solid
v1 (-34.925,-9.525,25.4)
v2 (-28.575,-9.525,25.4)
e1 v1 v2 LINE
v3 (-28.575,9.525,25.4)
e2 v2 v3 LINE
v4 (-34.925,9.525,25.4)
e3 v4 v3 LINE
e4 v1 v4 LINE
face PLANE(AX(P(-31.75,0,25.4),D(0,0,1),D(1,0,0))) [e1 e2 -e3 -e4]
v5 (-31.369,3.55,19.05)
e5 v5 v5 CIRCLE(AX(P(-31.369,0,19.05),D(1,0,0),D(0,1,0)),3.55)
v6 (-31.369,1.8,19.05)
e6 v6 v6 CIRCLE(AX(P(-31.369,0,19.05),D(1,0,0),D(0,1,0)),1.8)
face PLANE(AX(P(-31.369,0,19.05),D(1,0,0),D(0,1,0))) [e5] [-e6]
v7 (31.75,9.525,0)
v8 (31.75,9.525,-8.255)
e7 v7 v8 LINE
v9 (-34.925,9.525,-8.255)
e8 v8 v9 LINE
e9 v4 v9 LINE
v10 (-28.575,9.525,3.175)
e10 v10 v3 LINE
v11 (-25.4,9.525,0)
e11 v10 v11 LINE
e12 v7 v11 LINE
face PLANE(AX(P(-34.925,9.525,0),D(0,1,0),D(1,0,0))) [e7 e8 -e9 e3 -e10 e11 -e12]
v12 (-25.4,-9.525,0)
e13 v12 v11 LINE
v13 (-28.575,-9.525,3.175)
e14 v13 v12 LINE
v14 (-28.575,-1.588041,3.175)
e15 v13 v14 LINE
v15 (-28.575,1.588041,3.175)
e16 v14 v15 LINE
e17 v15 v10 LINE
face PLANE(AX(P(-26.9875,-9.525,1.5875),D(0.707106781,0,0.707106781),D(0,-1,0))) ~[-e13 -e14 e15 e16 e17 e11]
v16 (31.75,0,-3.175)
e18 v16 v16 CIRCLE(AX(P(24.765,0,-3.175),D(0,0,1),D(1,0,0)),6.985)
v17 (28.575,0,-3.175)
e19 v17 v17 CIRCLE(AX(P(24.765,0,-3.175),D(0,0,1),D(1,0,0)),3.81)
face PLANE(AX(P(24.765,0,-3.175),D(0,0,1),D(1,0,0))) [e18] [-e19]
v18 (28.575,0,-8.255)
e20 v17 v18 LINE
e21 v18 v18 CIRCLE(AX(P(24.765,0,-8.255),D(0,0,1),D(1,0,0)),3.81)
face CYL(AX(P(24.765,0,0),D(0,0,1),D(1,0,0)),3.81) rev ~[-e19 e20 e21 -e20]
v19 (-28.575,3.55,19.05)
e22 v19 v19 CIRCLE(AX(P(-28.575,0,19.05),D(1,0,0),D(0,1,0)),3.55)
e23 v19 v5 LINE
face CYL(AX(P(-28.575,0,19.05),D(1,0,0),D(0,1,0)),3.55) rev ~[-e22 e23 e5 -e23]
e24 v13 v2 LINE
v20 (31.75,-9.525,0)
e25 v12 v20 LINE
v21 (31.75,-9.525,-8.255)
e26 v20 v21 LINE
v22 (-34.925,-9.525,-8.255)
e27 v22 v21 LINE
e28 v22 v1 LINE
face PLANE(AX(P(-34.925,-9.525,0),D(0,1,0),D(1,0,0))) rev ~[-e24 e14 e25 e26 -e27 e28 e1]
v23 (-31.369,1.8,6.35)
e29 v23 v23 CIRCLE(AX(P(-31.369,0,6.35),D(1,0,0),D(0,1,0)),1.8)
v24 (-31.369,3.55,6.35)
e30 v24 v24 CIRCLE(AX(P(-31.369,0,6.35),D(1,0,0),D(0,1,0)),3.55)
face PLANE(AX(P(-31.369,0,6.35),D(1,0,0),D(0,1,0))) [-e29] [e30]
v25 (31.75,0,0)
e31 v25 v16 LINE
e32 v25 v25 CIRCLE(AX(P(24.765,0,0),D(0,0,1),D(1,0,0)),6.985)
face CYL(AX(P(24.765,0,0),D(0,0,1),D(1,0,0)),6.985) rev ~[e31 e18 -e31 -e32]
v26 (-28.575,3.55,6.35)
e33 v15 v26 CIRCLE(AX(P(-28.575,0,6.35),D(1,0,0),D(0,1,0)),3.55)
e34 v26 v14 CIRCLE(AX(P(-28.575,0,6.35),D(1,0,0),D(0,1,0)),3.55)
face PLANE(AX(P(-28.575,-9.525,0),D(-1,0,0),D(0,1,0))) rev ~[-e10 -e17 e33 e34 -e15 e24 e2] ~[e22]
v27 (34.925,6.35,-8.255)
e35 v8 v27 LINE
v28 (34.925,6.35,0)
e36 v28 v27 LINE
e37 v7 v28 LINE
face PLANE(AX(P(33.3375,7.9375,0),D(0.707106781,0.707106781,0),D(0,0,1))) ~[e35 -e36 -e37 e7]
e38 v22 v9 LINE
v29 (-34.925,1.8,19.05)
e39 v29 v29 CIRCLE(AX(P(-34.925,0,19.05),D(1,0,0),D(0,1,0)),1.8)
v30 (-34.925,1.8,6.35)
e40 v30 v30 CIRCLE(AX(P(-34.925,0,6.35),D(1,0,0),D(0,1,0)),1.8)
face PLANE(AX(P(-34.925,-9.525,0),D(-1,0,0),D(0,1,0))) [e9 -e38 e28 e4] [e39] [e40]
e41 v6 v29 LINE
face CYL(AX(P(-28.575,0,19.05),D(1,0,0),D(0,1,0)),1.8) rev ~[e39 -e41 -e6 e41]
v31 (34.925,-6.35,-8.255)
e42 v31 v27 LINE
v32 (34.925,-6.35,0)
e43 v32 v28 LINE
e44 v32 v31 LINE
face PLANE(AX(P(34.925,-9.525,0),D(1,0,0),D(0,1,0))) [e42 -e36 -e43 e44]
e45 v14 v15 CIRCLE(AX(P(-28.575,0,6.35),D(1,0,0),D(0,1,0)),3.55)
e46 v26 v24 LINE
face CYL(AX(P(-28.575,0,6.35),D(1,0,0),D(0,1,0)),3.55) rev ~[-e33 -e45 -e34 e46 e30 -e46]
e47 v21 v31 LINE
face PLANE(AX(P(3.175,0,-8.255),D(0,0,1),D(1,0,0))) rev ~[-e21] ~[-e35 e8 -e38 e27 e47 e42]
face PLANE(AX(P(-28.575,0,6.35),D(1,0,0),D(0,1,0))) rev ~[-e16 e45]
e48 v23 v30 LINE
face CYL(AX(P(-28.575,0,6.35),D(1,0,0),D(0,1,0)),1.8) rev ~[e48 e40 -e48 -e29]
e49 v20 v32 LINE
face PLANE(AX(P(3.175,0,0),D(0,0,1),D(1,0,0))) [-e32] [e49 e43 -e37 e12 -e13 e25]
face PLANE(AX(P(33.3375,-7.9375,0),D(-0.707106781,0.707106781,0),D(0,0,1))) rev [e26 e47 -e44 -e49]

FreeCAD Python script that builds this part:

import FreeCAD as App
import Part
import Sketcher
Q = App.Units.Quantity


def edges_at(feature, points):
    """Names of the edges that pass closest to the given points."""
    edges = feature.Shape.Edges
    near = lambda p: min(range(len(edges)), key=lambda i: edges[i].distToShape(Part.Vertex(*p))[0])
    return sorted({f"Edge{near(p) + 1}" for p in points})

doc = App.newDocument("Part")
body = doc.addObject("PartDesign::Body", "Body")

# Sketch on XY plane
sketch1 = doc.addObject("Sketcher::SketchObject", "Sketch")
body.addObject(sketch1)
sketch1.AttachmentSupport = (doc.XY_Plane, [""])
sketch1.MapMode = "FlatFace"
sketch1.addGeometry([
    Part.LineSegment(App.Vector(34.9, -9.5, 0), App.Vector(34.9, 9.5, 0)),  # 0
    Part.LineSegment(App.Vector(34.9, 9.5, 0), App.Vector(-34.9, 9.5, 0)),  # 1
    Part.LineSegment(App.Vector(-34.9, 9.5, 0), App.Vector(-34.9, -9.5, 0)),  # 2
    Part.LineSegment(App.Vector(-34.9, -9.5, 0), App.Vector(34.9, -9.5, 0)),  # 3
    Part.Circle(App.Vector(24.8, 0, 0), App.Vector(0, 0, 1), 3.8),  # 4
], False)
sketch1.addConstraint([
    Sketcher.Constraint("Coincident", 0, 2, 1, 1),
    Sketcher.Constraint("Coincident", 1, 2, 2, 1),
    Sketcher.Constraint("Coincident", 2, 2, 3, 1),
    Sketcher.Constraint("Coincident", 3, 2, 0, 1),
    Sketcher.Constraint("Vertical", 0),
    Sketcher.Constraint("Horizontal", 1),
    Sketcher.Constraint("Vertical", 2),
    Sketcher.Constraint("Horizontal", 3),
    Sketcher.Constraint("Symmetric", 0, 2, 2, 2, -1, 1),
    Sketcher.Constraint("PointOnObject", 4, 3, -1),
    Sketcher.Constraint("Diameter", 4, Q("0.3 in")),
    Sketcher.Constraint("DistanceX", 1, 2, 1, 1, Q("2.75 in")),
    Sketcher.Constraint("DistanceY", 0, 1, 0, 2, Q("0.75 in")),
    Sketcher.Constraint("DistanceX", 4, 3, 0, 2, Q("0.4 in")),
])
pad1 = doc.addObject("PartDesign::Pad", "Pad")
body.addObject(pad1)
pad1.Profile = sketch1
pad1.Length = Q("0.325 in")
pad1.Reversed = True

# Sketch on XY plane
sketch2 = doc.addObject("Sketcher::SketchObject", "Sketch001")
body.addObject(sketch2)
sketch2.AttachmentSupport = (doc.XY_Plane, [""])
sketch2.MapMode = "FlatFace"
sketch2.addGeometry([
    Part.LineSegment(App.Vector(-35, 10, 0), App.Vector(-35, -10, 0)),
    Part.LineSegment(App.Vector(-35, -10, 0), App.Vector(-29, -10, 0)),
    Part.LineSegment(App.Vector(-29, -10, 0), App.Vector(-29, 10, 0)),
    Part.LineSegment(App.Vector(-29, 10, 0), App.Vector(-35, 10, 0)),
], False)
sketch2.addConstraint([
    Sketcher.Constraint("Coincident", 0, 2, 1, 1),
    Sketcher.Constraint("Coincident", 1, 2, 2, 1),
    Sketcher.Constraint("Coincident", 2, 2, 3, 1),
    Sketcher.Constraint("Coincident", 3, 2, 0, 1),
    Sketcher.Constraint("Vertical", 0),
    Sketcher.Constraint("Horizontal", 1),
    Sketcher.Constraint("Vertical", 2),
    Sketcher.Constraint("Horizontal", 3),
    Sketcher.Constraint("DistanceX", 1, 1, 1, 2, Q("0.25 in")),
    Sketcher.Constraint("DistanceY", 0, 2, 0, 1, Q("0.75 in")),
    Sketcher.Constraint("DistanceX", 0, 2, -1, 1, Q("1.375 in")),
    Sketcher.Constraint("DistanceY", 0, 2, -1, 1, Q("0.375 in")),
])
pad2 = doc.addObject("PartDesign::Pad", "Pad001")
body.addObject(pad2)
pad2.Profile = sketch2
pad2.Length = Q("1 in")

# Sketch on XY plane
sketch3 = doc.addObject("Sketcher::SketchObject", "Sketch002")
body.addObject(sketch3)
sketch3.AttachmentSupport = (doc.XY_Plane, [""])
sketch3.MapMode = "FlatFace"
sketch3.addGeometry([
    Part.Circle(App.Vector(24.8, 0, 0), App.Vector(0, 0, 1), 7),
    Part.Circle(App.Vector(24.8, 0, 0), App.Vector(0, 0, 1), 3.8),
], False)
sketch3.addConstraint([
    Sketcher.Constraint("Coincident", 1, 3, 0, 3),
    Sketcher.Constraint("PointOnObject", 0, 3, -1),
    Sketcher.Constraint("Diameter", 1, Q("0.3 in")),
    Sketcher.Constraint("Diameter", 0, Q("0.55 in")),
    Sketcher.Constraint("DistanceX", -1, 1, 0, 3, Q("0.975 in")),
])
pocket1 = doc.addObject("PartDesign::Pocket", "Pocket")
body.addObject(pocket1)
pocket1.Profile = sketch3
pocket1.Length = Q("0.125 in")

# Sketch on YZ plane
sketch4 = doc.addObject("Sketcher::SketchObject", "Sketch003")
body.addObject(sketch4)
sketch4.AttachmentSupport = (doc.YZ_Plane, [""])
sketch4.MapMode = "FlatFace"
sketch4.AttachmentOffset = App.Placement(App.Vector(0, 0, -1.125 * 25.4), App.Rotation())
sketch4.addGeometry([
    Part.Circle(App.Vector(0, 6.3, 0), App.Vector(0, 0, 1), 1.8),
    Part.Circle(App.Vector(0, 19.1, 0), App.Vector(0, 0, 1), 1.8),
], False)
sketch4.addConstraint([
    Sketcher.Constraint("Equal", 0, 1),
    Sketcher.Constraint("PointOnObject", 0, 3, -2),
    Sketcher.Constraint("PointOnObject", 1, 3, -2),
    Sketcher.Constraint("DistanceY", 0, 3, 1, 3, Q("0.5 in")),
    Sketcher.Constraint("Diameter", 0, 3.6),
    Sketcher.Constraint("DistanceY", -1, 1, 0, 3, Q("0.25 in")),
])
pocket2 = doc.addObject("PartDesign::Pocket", "Pocket001")
body.addObject(pocket2)
pocket2.Profile = sketch4
pocket2.Type = "ThroughAll"
doc.recompute()

chamfer = doc.addObject("PartDesign::Chamfer", "Chamfer")
body.addObject(chamfer)
chamfer.Base = (pocket2, edges_at(pocket2, [(-28.575, 0, 0), (34.925, 9.525, -4.128), (34.925, -9.525, -4.128)]))
chamfer.Size = Q("0.125 in")

# Sketch on YZ plane
sketch5 = doc.addObject("Sketcher::SketchObject", "Sketch004")
body.addObject(sketch5)
sketch5.AttachmentSupport = (doc.YZ_Plane, [""])
sketch5.MapMode = "FlatFace"
sketch5.AttachmentOffset = App.Placement(App.Vector(0, 0, -1.125 * 25.4), App.Rotation())
sketch5.addGeometry([
    Part.Circle(App.Vector(0, 6.3, 0), App.Vector(0, 0, 1), 3.5),
    Part.Circle(App.Vector(0, 6.3, 0), App.Vector(0, 0, 1), 1.8),
    Part.Circle(App.Vector(0, 19.1, 0), App.Vector(0, 0, 1), 3.5),
    Part.Circle(App.Vector(0, 19.1, 0), App.Vector(0, 0, 1), 1.8),
], False)
sketch5.addConstraint([
    Sketcher.Constraint("Coincident", 1, 3, 0, 3),
    Sketcher.Constraint("Coincident", 3, 3, 2, 3),
    Sketcher.Constraint("Equal", 0, 2),
    Sketcher.Constraint("Equal", 1, 3),
    Sketcher.Constraint("PointOnObject", 0, 3, -2),
    Sketcher.Constraint("PointOnObject", 2, 3, -2),
    Sketcher.Constraint("DistanceY", 0, 3, 2, 3, Q("0.5 in")),
    Sketcher.Constraint("Diameter", 0, 7.1),
    Sketcher.Constraint("Diameter", 1, 3.6),
    Sketcher.Constraint("DistanceY", -1, 1, 0, 3, Q("0.25 in")),
])
pocket3 = doc.addObject("PartDesign::Pocket", "Pocket002")
body.addObject(pocket3)
pocket3.Profile = sketch5
pocket3.Length = Q("0.11 in")

doc.recompute()
